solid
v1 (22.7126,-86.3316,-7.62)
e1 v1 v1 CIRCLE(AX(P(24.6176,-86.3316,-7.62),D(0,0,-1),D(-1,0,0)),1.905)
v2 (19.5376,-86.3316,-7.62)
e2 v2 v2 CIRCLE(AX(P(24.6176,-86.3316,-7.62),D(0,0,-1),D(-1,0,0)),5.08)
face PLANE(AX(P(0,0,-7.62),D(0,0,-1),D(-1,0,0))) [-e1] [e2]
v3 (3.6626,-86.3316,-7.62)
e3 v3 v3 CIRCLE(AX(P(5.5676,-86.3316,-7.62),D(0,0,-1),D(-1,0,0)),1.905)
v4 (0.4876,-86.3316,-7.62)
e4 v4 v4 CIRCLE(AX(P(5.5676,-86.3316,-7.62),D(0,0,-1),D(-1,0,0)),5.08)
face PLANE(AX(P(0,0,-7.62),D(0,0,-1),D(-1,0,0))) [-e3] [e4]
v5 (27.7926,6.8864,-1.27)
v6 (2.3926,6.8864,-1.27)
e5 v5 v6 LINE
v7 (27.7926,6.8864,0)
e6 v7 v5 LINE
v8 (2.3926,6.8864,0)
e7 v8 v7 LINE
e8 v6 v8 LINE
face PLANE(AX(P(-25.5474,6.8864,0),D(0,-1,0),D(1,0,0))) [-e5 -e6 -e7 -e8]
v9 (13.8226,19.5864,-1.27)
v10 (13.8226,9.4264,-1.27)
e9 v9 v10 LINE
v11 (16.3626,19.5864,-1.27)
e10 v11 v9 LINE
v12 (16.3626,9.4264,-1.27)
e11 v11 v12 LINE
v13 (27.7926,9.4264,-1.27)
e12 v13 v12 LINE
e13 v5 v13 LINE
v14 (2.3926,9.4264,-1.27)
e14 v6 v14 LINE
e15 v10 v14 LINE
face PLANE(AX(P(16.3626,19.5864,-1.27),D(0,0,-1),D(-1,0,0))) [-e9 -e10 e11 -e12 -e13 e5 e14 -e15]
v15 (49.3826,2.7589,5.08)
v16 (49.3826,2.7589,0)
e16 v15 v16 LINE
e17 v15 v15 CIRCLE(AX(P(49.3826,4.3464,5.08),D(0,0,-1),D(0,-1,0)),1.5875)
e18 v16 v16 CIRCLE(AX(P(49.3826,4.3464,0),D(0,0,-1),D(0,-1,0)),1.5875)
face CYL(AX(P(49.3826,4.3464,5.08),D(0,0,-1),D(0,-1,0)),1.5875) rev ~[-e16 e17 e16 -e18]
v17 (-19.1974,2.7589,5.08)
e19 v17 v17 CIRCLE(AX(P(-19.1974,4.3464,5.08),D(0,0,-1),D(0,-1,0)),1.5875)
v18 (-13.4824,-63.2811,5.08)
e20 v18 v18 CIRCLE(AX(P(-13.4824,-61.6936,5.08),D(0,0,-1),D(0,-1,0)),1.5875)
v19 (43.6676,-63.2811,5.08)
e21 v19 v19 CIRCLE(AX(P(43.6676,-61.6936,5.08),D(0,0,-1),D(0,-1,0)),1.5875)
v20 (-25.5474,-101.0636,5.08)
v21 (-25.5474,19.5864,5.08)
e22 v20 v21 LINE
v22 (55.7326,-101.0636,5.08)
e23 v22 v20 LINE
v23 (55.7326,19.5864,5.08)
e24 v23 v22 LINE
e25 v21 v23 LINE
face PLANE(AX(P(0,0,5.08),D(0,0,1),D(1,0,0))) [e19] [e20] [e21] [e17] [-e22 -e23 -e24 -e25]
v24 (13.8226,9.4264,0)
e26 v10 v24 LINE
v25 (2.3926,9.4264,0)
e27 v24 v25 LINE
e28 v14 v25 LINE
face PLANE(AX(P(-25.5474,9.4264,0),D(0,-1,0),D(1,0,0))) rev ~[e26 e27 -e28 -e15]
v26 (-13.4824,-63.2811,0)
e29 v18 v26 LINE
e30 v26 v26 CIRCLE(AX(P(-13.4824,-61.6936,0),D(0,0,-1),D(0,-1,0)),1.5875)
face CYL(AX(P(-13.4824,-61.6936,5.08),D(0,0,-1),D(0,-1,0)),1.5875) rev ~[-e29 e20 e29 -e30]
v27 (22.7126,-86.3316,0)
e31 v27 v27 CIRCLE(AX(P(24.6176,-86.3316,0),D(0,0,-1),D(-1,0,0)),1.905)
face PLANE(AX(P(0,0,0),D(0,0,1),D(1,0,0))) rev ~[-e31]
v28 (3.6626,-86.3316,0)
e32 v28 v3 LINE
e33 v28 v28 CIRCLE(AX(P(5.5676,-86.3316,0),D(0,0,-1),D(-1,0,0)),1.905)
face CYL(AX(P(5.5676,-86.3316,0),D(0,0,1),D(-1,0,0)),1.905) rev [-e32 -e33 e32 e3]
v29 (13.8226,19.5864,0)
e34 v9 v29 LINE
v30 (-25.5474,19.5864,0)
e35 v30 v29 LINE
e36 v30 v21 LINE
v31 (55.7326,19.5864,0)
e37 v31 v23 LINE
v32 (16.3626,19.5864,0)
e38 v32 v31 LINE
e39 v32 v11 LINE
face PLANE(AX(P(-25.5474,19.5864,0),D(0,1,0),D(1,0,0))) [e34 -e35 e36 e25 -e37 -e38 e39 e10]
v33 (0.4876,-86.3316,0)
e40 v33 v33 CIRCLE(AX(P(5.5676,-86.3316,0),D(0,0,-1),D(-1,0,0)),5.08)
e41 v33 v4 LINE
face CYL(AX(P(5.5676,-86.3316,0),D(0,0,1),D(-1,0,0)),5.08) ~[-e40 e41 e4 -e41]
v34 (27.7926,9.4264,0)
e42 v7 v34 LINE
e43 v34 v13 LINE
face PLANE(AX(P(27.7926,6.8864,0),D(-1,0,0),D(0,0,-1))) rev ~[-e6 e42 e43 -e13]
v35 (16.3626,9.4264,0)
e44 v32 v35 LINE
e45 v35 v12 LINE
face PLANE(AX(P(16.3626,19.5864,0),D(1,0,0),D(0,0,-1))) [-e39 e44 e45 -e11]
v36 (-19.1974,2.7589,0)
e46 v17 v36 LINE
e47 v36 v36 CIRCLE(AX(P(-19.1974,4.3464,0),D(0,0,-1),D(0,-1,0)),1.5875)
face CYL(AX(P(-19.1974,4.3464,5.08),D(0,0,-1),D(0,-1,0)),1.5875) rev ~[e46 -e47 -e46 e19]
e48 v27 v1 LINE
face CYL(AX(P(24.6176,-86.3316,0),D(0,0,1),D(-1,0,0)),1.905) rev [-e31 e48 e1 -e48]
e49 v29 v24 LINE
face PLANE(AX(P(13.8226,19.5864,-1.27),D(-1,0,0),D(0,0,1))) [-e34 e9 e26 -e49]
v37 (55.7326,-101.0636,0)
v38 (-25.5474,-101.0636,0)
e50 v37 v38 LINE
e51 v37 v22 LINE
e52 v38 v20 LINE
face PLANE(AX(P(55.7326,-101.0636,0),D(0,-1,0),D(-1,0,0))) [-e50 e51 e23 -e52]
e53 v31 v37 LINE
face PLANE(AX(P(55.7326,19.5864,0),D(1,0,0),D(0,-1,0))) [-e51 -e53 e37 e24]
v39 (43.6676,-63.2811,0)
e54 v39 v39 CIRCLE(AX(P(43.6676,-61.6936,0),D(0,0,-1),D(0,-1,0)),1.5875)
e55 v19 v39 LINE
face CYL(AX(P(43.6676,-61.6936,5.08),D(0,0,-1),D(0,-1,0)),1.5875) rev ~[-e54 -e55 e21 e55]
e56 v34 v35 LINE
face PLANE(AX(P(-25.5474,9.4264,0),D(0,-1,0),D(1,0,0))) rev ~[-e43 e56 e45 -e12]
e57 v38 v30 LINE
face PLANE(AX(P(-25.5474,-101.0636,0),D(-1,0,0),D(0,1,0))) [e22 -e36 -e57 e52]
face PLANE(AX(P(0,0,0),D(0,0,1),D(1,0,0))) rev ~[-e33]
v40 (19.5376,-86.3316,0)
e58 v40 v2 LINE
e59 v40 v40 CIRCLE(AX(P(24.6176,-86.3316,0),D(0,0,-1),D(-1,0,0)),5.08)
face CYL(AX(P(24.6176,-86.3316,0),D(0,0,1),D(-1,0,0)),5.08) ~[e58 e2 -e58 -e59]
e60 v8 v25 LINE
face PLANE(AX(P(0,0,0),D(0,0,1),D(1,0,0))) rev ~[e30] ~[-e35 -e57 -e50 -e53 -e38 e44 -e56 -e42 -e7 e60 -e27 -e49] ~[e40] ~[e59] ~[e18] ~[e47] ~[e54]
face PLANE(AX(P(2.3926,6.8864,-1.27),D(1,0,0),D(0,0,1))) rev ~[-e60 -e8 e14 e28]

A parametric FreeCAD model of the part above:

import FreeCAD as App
import Part
import Sketcher
Q = App.Units.Quantity

doc = App.newDocument("Part")
params = doc.addObject("Spreadsheet::Sheet", "Params")
for row, (alias, value) in enumerate([
    ("sketch1_width", "3.2 in"),
    ("sketch1_height", "4.75 in"),
    ("pad1_length", "0.2 in"),
    ("sketch2_diameter", "0.125 in"),
    ("hole_diameter", "0.125 in"),
    ("sketch3_width", "0.1 in"),
    ("sketch3_height", "0.05 in"),
    ("pad2_length", "0.5 in"),
    ("sketch4_width", "1 in"),
    ("sketch4_height", "0.05 in"),
    ("pad3_length", "0.1 in"),
    ("sketch5_diameter", "0.4 in"),
    ("sketch5_diameter2", "0.15 in"),
    ("pad4_length", "0.3 in"),
], start=1):
    params.set(f"A{row}", alias)
    params.set(f"B{row}", "=" + value)
    params.setAlias(f"B{row}", alias)

body = doc.addObject("PartDesign::Body", "Body")

# Sketch on XY plane
sketch1 = body.newObject("Sketcher::SketchObject", "Sketch")
sketch1.AttachmentSupport = (doc.getObject("XY_Plane"), [""])
sketch1.MapMode = "FlatFace"
sketch1.addGeometry([
    Part.LineSegment(App.Vector(56, 20, 0), App.Vector(-26, 20, 0)),
    Part.LineSegment(App.Vector(-26, 20, 0), App.Vector(-26, -101, 0)),
    Part.LineSegment(App.Vector(-26, -101, 0), App.Vector(56, -101, 0)),
    Part.LineSegment(App.Vector(56, -101, 0), App.Vector(56, 20, 0)),
], False)
sketch1.addConstraint([
    Sketcher.Constraint("Coincident", 0, 2, 1, 1),
    Sketcher.Constraint("Coincident", 1, 2, 2, 1),
    Sketcher.Constraint("Coincident", 2, 2, 3, 1),
    Sketcher.Constraint("Coincident", 3, 2, 0, 1),
    Sketcher.Constraint("Horizontal", 0),
    Sketcher.Constraint("Vertical", 1),
    Sketcher.Constraint("Horizontal", 2),
    Sketcher.Constraint("Vertical", 3),
    Sketcher.Constraint("DistanceX", 0, 2, 0, 1, Q("3.2 in")),
    Sketcher.Constraint("DistanceY", 1, 2, 1, 1, Q("4.75 in")),
    Sketcher.Constraint("DistanceX", 0, 2, -1, 1, Q("1.0058 in")),
    Sketcher.Constraint("DistanceY", -1, 1, 0, 2, Q("19.5864 mm")),
])
sketch1.setExpression("Constraints[8]", "Params.sketch1_width")
sketch1.setExpression("Constraints[9]", "Params.sketch1_height")
pad1 = body.newObject("PartDesign::Pad", "Pad")
pad1.Profile = sketch1
pad1.setExpression("Length", "Params.pad1_length")

# Sketch on XY plane
sketch2 = body.newObject("Sketcher::SketchObject", "Sketch001")
sketch2.AttachmentSupport = (doc.getObject("XY_Plane"), [""])
sketch2.MapMode = "FlatFace"
sketch2.AttachmentOffset = App.Placement(App.Vector(0, 0, 0.2 * 25.4), App.Rotation())
sketch2.addGeometry([
    Part.Circle(App.Vector(-19.2, 4.3, 0), App.Vector(0, 0, 1), 1.6),
    Part.Circle(App.Vector(49.4, 4.3, 0), App.Vector(0, 0, 1), 1.6),
    Part.Circle(App.Vector(43.7, -61.7, 0), App.Vector(0, 0, 1), 1.6),
    Part.Circle(App.Vector(-13.5, -61.7, 0), App.Vector(0, 0, 1), 1.6),
], False)
sketch2.addConstraint([
    Sketcher.Constraint("Equal", 0, 1),
    Sketcher.Constraint("Equal", 1, 2),
    Sketcher.Constraint("Equal", 2, 3),
    Sketcher.Constraint("Horizontal", 0, 3, 1, 3),
    Sketcher.Constraint("Horizontal", 2, 3, 3, 3),
    Sketcher.Constraint("Diameter", 0, Q("0.125 in")),
    Sketcher.Constraint("DistanceX", 0, 3, 1, 3, Q("2.7 in")),
    Sketcher.Constraint("DistanceY", 2, 3, 1, 3, Q("2.6 in")),
    Sketcher.Constraint("DistanceX", 3, 3, 2, 3, Q("2.25 in")),
    Sketcher.Constraint("DistanceX", 2, 3, 1, 3, Q("0.225 in")),
    Sketcher.Constraint("DistanceX", 0, 3, -1, 1, Q("0.7558 in")),
    Sketcher.Constraint("DistanceY", -1, 1, 0, 3, Q("4.3464 mm")),
])
sketch2.setExpression("Constraints[5]", "Params.sketch2_diameter")
doc.recompute()
hole = body.newObject("PartDesign::Hole", "Hole")
hole.Profile = sketch2
hole.ThreadType = "None"
hole.setExpression("Diameter", "Params.hole_diameter")
hole.DepthType = "ThroughAll"

# Sketch on XZ plane
sketch3 = body.newObject("Sketcher::SketchObject", "Sketch002")
sketch3.AttachmentSupport = (doc.getObject("XZ_Plane"), [""])
sketch3.MapMode = "FlatFace"
sketch3.AttachmentOffset = App.Placement(App.Vector(0, 0, -19.5864), App.Rotation())
sketch3.addGeometry([
    Part.LineSegment(App.Vector(13.8, -1.3, 0), App.Vector(13.8, 0, 0)),
    Part.LineSegment(App.Vector(13.8, 0, 0), App.Vector(16.4, 0, 0)),
    Part.LineSegment(App.Vector(16.4, 0, 0), App.Vector(16.4, -1.3, 0)),
    Part.LineSegment(App.Vector(16.4, -1.3, 0), App.Vector(13.8, -1.3, 0)),
], False)
sketch3.addConstraint([
    Sketcher.Constraint("Coincident", 0, 2, 1, 1),
    Sketcher.Constraint("Coincident", 1, 2, 2, 1),
    Sketcher.Constraint("Coincident", 2, 2, 3, 1),
    Sketcher.Constraint("Coincident", 3, 2, 0, 1),
    Sketcher.Constraint("Vertical", 0),
    Sketcher.Constraint("Horizontal", 1),
    Sketcher.Constraint("Vertical", 2),
    Sketcher.Constraint("Horizontal", 3),
    Sketcher.Constraint("PointOnObject", 0, 2, -1),
    Sketcher.Constraint("DistanceX", 1, 1, 1, 2, Q("0.1 in")),
    Sketcher.Constraint("DistanceY", 0, 1, 0, 2, Q("0.05 in")),
    Sketcher.Constraint("DistanceX", -1, 1, 0, 2, Q("0.5442 in")),
])
sketch3.setExpression("Constraints[9]", "Params.sketch3_width")
sketch3.setExpression("Constraints[10]", "Params.sketch3_height")
pad2 = body.newObject("PartDesign::Pad", "Pad001")
pad2.Profile = sketch3
pad2.setExpression("Length", "Params.pad2_length")

# Sketch on XZ plane
sketch4 = body.newObject("Sketcher::SketchObject", "Sketch003")
sketch4.AttachmentSupport = (doc.getObject("XZ_Plane"), [""])
sketch4.MapMode = "FlatFace"
sketch4.AttachmentOffset = App.Placement(App.Vector(0, 0, -6.8864), App.Rotation())
sketch4.addGeometry([
    Part.LineSegment(App.Vector(27.8, 0, 0), App.Vector(2.4, 0, 0)),
    Part.LineSegment(App.Vector(2.4, 0, 0), App.Vector(2.4, -1.3, 0)),
    Part.LineSegment(App.Vector(2.4, -1.3, 0), App.Vector(27.8, -1.3, 0)),
    Part.LineSegment(App.Vector(27.8, -1.3, 0), App.Vector(27.8, 0, 0)),
], False)
sketch4.addConstraint([
    Sketcher.Constraint("Coincident", 0, 2, 1, 1),
    Sketcher.Constraint("Coincident", 1, 2, 2, 1),
    Sketcher.Constraint("Coincident", 2, 2, 3, 1),
    Sketcher.Constraint("Coincident", 3, 2, 0, 1),
    Sketcher.Constraint("Horizontal", 0),
    Sketcher.Constraint("Vertical", 1),
    Sketcher.Constraint("Horizontal", 2),
    Sketcher.Constraint("Vertical", 3),
    Sketcher.Constraint("PointOnObject", 0, 2, -1),
    Sketcher.Constraint("DistanceX", 0, 2, 0, 1, Q("1 in")),
    Sketcher.Constraint("DistanceY", 1, 2, 1, 1, Q("0.05 in")),
    Sketcher.Constraint("DistanceX", -1, 1, 0, 2, Q("0.0942 in")),
])
sketch4.setExpression("Constraints[9]", "Params.sketch4_width")
sketch4.setExpression("Constraints[10]", "Params.sketch4_height")
pad3 = body.newObject("PartDesign::Pad", "Pad002")
pad3.Profile = sketch4
pad3.setExpression("Length", "Params.pad3_length")
pad3.Reversed = True

# Sketch on XY plane
sketch5 = body.newObject("Sketcher::SketchObject", "Sketch004")
sketch5.AttachmentSupport = (doc.getObject("XY_Plane"), [""])
sketch5.MapMode = "FlatFace"
sketch5.addGeometry([
    Part.Circle(App.Vector(5.6, -86.3, 0), App.Vector(0, 0, 1), 5.1),
    Part.Circle(App.Vector(5.6, -86.3, 0), App.Vector(0, 0, 1), 1.9),
    Part.Circle(App.Vector(24.6, -86.3, 0), App.Vector(0, 0, 1), 5.1),
    Part.Circle(App.Vector(24.6, -86.3, 0), App.Vector(0, 0, 1), 1.9),
], False)
sketch5.addConstraint([
    Sketcher.Constraint("Coincident", 1, 3, 0, 3),
    Sketcher.Constraint("Coincident", 3, 3, 2, 3),
    Sketcher.Constraint("Equal", 0, 2),
    Sketcher.Constraint("Equal", 1, 3),
    Sketcher.Constraint("Horizontal", 1, 3, 2, 3),
    Sketcher.Constraint("Diameter", 0, Q("0.4 in")),
    Sketcher.Constraint("Diameter", 1, Q("0.15 in")),
    Sketcher.Constraint("DistanceX", 0, 3, 2, 3, Q("0.75 in")),
    Sketcher.Constraint("DistanceX", -1, 1, 0, 3, Q("0.2192 in")),
    Sketcher.Constraint("DistanceY", 0, 3, -1, 1, Q("86.3316 mm")),
])
sketch5.setExpression("Constraints[5]", "Params.sketch5_diameter")
sketch5.setExpression("Constraints[6]", "Params.sketch5_diameter2")
pad4 = body.newObject("PartDesign::Pad", "Pad003")
pad4.Profile = sketch5
pad4.setExpression("Length", "Params.pad4_length")
pad4.Reversed = True

doc.recompute()
